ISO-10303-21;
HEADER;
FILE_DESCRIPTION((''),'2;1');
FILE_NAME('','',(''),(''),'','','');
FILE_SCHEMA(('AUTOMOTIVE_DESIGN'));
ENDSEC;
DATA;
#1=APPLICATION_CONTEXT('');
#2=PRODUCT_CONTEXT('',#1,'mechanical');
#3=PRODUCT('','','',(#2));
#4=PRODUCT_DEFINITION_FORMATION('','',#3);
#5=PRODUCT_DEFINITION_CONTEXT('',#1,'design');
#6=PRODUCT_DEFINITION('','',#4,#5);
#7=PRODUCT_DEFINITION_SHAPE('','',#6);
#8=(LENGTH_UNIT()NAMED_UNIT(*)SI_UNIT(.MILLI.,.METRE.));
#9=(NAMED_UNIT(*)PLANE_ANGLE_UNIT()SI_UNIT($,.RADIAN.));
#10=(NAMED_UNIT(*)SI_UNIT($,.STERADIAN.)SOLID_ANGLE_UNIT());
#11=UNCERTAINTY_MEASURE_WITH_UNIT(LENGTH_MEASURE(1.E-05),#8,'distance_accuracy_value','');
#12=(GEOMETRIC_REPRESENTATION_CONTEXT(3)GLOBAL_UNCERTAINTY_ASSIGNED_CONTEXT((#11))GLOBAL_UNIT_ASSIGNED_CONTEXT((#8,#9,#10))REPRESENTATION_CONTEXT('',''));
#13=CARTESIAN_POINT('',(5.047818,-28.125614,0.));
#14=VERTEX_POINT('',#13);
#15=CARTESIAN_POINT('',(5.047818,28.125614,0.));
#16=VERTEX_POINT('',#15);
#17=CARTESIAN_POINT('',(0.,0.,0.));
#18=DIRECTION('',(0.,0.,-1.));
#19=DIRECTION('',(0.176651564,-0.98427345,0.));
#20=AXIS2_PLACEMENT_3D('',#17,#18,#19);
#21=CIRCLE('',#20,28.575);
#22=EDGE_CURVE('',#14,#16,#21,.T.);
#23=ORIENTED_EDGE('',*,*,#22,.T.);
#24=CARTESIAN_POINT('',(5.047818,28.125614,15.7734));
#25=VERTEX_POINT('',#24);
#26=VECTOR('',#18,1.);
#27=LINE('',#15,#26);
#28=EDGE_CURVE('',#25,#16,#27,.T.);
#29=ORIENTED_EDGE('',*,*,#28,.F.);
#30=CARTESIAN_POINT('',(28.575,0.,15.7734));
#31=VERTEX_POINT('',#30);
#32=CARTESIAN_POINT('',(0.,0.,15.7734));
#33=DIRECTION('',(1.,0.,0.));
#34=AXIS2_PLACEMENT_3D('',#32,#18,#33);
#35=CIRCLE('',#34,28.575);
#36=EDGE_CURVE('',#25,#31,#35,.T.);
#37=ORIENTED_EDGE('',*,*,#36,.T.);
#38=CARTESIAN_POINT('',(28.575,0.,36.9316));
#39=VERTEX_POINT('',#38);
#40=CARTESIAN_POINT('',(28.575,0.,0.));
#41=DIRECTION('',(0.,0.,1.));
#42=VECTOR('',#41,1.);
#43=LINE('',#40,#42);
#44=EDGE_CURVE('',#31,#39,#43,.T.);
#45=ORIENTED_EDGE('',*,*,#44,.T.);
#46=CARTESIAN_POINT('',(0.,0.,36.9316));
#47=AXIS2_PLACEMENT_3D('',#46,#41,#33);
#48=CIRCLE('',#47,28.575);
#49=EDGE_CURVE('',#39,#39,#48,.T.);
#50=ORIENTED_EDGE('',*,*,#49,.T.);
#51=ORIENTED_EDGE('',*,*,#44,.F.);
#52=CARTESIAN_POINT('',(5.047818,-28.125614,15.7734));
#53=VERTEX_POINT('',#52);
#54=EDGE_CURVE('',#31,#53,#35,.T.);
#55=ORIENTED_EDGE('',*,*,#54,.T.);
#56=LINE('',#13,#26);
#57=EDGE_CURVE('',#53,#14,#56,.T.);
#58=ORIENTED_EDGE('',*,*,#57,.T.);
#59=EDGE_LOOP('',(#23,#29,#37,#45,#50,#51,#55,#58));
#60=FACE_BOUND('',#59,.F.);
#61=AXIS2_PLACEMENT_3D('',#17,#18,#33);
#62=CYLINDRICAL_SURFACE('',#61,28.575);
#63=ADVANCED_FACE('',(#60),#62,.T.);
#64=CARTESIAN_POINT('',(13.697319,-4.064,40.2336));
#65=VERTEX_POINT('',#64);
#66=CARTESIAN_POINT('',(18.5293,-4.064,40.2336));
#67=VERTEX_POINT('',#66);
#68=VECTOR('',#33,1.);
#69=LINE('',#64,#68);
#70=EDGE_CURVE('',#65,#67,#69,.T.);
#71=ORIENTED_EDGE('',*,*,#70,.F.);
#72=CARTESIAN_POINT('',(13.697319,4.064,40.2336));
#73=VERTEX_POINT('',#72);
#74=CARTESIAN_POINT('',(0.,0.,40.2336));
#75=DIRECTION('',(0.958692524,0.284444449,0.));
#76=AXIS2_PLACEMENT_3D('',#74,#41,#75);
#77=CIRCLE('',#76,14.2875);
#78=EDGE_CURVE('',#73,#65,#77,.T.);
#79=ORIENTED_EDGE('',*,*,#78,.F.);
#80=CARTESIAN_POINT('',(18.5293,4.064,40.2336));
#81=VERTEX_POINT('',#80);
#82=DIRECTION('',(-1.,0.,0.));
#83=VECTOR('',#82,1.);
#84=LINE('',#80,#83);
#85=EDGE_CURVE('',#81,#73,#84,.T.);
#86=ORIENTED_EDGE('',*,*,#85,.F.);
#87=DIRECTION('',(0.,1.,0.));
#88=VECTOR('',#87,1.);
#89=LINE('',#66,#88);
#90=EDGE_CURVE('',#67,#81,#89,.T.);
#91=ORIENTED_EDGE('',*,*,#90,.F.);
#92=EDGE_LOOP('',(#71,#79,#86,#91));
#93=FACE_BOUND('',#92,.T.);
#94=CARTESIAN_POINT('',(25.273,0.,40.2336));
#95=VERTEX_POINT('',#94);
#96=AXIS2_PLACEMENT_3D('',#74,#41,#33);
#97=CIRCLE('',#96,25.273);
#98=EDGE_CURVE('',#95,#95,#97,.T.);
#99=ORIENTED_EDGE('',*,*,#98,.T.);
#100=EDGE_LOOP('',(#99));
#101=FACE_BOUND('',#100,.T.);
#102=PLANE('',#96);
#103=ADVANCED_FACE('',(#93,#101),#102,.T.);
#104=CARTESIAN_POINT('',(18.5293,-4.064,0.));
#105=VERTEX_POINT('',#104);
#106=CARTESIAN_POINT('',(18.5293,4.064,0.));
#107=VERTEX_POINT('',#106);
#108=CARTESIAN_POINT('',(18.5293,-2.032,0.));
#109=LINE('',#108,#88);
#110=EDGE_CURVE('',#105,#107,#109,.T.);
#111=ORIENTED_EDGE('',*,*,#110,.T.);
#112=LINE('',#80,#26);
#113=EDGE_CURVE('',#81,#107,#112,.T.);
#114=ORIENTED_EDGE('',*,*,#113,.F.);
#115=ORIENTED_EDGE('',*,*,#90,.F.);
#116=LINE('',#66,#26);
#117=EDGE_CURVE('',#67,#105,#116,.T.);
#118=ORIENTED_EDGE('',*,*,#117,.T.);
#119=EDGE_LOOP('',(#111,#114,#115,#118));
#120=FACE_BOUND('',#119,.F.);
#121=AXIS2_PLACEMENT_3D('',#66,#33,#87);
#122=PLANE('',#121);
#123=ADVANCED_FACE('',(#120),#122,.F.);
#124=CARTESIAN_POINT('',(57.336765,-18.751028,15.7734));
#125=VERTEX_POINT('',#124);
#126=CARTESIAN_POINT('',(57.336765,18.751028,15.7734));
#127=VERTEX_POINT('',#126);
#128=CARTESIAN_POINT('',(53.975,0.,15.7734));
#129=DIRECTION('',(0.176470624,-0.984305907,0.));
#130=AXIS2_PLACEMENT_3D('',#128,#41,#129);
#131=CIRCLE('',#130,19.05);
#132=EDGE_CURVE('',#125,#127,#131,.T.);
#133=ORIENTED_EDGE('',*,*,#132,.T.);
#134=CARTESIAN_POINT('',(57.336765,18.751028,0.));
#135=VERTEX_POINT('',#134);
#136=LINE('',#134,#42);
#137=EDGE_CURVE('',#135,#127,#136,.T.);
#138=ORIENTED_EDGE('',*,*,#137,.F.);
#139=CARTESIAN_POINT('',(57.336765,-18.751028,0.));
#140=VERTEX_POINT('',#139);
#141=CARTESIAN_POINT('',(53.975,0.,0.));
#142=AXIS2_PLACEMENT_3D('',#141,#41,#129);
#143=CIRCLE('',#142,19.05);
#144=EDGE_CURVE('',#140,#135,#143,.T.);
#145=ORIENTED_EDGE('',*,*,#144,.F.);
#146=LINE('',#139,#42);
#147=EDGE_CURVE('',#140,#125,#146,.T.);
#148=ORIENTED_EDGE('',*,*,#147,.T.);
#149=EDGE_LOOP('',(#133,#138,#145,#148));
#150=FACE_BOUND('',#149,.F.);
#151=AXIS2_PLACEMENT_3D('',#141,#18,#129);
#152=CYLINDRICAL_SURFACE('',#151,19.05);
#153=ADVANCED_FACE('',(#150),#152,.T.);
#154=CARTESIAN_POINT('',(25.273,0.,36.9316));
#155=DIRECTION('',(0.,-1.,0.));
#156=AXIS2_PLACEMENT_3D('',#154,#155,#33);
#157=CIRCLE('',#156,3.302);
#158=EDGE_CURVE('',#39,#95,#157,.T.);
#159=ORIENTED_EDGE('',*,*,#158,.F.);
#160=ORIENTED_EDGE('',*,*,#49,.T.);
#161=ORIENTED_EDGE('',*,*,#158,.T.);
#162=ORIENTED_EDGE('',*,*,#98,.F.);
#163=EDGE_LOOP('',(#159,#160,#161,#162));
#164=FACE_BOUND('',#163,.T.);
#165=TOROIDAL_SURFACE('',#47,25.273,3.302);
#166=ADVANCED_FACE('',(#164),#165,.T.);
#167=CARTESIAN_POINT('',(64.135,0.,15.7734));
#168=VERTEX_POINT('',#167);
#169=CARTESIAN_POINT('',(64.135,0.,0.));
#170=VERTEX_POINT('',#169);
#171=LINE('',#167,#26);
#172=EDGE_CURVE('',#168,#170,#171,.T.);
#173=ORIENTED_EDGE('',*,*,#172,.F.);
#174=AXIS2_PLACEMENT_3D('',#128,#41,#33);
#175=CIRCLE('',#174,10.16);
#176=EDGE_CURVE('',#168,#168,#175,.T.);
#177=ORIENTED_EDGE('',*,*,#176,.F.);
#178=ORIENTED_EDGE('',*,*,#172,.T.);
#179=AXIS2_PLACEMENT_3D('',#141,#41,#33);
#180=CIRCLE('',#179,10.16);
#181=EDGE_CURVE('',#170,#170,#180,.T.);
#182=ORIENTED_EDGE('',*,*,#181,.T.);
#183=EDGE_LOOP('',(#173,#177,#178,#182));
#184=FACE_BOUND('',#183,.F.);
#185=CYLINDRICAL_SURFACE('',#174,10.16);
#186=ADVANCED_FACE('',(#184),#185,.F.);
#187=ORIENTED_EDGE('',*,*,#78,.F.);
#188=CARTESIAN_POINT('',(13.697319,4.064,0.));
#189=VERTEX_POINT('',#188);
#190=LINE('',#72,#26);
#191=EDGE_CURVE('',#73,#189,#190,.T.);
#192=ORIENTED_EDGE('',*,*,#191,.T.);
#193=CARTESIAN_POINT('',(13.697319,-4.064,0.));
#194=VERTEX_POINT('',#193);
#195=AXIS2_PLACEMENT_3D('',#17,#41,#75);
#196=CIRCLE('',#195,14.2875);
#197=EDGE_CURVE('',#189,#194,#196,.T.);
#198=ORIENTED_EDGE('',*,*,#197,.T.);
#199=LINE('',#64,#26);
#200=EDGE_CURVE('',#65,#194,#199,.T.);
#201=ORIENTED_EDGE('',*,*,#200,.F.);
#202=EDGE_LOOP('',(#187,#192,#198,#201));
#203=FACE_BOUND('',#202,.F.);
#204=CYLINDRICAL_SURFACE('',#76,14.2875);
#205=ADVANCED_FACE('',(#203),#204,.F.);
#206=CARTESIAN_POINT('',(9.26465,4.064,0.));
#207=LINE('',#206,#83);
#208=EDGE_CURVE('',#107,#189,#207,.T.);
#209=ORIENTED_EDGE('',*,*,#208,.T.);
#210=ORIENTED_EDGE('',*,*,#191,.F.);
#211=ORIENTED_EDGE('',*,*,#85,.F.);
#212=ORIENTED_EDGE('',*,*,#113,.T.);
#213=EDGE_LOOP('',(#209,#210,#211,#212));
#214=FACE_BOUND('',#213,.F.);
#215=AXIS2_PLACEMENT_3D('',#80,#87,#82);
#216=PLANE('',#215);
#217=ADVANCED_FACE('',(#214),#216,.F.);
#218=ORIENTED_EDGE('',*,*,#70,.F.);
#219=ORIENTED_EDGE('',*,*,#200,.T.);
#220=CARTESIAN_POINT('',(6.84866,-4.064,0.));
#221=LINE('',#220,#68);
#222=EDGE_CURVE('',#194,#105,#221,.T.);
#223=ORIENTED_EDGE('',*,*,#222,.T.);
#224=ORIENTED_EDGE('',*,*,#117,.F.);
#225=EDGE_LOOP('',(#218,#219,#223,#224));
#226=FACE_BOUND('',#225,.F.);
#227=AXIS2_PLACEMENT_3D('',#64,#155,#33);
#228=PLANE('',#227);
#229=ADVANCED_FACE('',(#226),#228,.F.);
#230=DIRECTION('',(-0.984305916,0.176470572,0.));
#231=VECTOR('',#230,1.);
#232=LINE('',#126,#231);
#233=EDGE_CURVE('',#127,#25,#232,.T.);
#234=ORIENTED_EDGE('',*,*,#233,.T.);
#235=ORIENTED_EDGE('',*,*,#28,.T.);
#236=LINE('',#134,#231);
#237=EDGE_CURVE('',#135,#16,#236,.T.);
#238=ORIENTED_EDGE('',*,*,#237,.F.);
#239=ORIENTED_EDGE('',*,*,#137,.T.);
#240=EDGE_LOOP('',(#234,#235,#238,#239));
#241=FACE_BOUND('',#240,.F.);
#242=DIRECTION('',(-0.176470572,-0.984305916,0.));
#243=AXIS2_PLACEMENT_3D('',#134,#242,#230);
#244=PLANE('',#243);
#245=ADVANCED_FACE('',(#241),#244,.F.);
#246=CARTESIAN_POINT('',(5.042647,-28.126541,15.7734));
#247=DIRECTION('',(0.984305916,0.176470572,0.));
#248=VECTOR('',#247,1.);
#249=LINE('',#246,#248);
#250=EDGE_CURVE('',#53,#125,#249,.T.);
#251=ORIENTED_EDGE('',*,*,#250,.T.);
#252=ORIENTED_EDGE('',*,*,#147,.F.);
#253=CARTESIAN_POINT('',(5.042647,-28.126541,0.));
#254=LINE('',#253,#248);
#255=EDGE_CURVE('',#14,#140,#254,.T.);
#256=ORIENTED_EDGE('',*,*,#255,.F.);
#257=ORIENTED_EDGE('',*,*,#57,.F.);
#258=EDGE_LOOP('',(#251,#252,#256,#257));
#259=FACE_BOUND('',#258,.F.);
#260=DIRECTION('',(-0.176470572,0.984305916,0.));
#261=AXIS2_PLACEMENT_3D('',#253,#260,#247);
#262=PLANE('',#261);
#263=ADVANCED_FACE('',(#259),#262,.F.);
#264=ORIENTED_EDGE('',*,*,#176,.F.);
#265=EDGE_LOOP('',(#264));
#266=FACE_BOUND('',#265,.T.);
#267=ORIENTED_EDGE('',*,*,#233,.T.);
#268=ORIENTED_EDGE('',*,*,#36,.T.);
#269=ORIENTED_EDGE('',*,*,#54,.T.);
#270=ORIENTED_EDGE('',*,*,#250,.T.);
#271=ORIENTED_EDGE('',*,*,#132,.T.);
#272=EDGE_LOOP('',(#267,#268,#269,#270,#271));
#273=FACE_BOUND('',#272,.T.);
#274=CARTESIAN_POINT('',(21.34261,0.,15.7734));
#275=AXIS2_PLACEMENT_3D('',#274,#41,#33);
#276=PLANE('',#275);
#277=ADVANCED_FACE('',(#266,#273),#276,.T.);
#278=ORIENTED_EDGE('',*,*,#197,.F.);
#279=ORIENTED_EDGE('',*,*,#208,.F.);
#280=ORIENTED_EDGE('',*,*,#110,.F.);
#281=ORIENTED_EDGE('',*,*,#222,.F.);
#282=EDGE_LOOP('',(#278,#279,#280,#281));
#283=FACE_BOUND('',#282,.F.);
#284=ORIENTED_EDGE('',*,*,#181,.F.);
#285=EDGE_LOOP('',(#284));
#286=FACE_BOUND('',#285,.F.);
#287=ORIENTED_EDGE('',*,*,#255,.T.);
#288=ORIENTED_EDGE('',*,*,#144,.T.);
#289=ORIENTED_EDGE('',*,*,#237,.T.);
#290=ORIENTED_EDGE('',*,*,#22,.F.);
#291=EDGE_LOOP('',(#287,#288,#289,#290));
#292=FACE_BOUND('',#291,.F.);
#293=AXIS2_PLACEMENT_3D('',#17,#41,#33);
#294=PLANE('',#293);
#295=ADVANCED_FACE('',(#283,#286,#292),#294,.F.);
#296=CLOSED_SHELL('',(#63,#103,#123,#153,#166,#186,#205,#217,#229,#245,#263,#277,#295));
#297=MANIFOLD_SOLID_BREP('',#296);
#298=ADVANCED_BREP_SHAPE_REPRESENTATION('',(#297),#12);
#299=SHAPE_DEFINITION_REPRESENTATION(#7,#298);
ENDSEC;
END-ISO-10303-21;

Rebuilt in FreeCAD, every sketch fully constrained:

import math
import FreeCAD as App
import Part
import Sketcher
from FreeCAD import Vector
Q = App.Units.Quantity


def edges_at(feature, points):
    """Names of the edges that pass closest to the given points."""
    edges = feature.Shape.Edges
    near = lambda p: min(range(len(edges)), key=lambda i: edges[i].distToShape(Part.Vertex(*p))[0])
    return sorted({f"Edge{near(p) + 1}" for p in points})

doc = App.newDocument("Part")
body = doc.addObject("PartDesign::Body", "Body")

# Sketch on XY plane
sketch1 = body.newObject("Sketcher::SketchObject", "Sketch")
sketch1.AttachmentSupport = (doc.getObject("XY_Plane"), [""])
sketch1.MapMode = "FlatFace"
sketch1.addGeometry(Part.Circle(Vector(0, 0, 0), Vector(0, 0, 1), 28.575), False)
sketch1.addConstraint(Sketcher.Constraint("Coincident", 0, 3, -1, 1))
sketch1.addConstraint(Sketcher.Constraint("Diameter", 0, Q("2.25 in")))
pad1 = body.newObject("PartDesign::Pad", "Pad")
pad1.Profile = sketch1
pad1.Length = Q("1.584 in")

# Sketch on XY plane
sketch2 = body.newObject("Sketcher::SketchObject", "Sketch001")
sketch2.AttachmentSupport = (doc.getObject("XY_Plane"), [""])
sketch2.MapMode = "FlatFace"
sketch2.addGeometry(Part.LineSegment(Vector(5.042647, -28.126541, 0), Vector(57.336765, -18.751028, 0)), False)
sketch2.addGeometry(Part.ArcOfCircle(Part.Circle(Vector(53.975, 0, 0), Vector(0, 0, 1), 19.05), math.radians(-79.835749), math.radians(79.835749)), False)
sketch2.addGeometry(Part.LineSegment(Vector(57.336765, 18.751028, 0), Vector(5.042647, 28.126541, 0)), False)
sketch2.addGeometry(Part.ArcOfCircle(Part.Circle(Vector(0, 0, 0), Vector(0, 0, 1), 28.575), math.radians(79.835751), math.radians(280.164249)), False)
sketch2.addConstraint(Sketcher.Constraint("Tangent", 0, 2, 1, 1))
sketch2.addConstraint(Sketcher.Constraint("Tangent", 1, 2, 2, 1))
sketch2.addConstraint(Sketcher.Constraint("Tangent", 2, 2, 3, 1))
sketch2.addConstraint(Sketcher.Constraint("Tangent", 3, 2, 0, 1))
sketch2.addConstraint(Sketcher.Constraint("Coincident", 3, 3, -1, 1))
sketch2.addConstraint(Sketcher.Constraint("PointOnObject", 1, 3, -1))
sketch2.addConstraint(Sketcher.Constraint("Radius", 1, Q("0.75 in")))
sketch2.addConstraint(Sketcher.Constraint("Radius", 3, Q("1.125 in")))
sketch2.addConstraint(Sketcher.Constraint("DistanceX", -1, 1, 1, 3, Q("2.125 in")))
pad2 = body.newObject("PartDesign::Pad", "Pad001")
pad2.Profile = sketch2
pad2.Length = Q("0.621 in")

# Sketch on XY plane
sketch3 = body.newObject("Sketcher::SketchObject", "Sketch002")
sketch3.AttachmentSupport = (doc.getObject("XY_Plane"), [""])
sketch3.MapMode = "FlatFace"
sketch3.AttachmentOffset = App.Placement(Vector(0, 0, 1.584 * 25.4), App.Rotation())
sketch3.addGeometry(Part.LineSegment(Vector(18.5293, 4.064, 0), Vector(13.697319, 4.064, 0)), False)
sketch3.addGeometry(Part.ArcOfCircle(Part.Circle(Vector(0, 0, 0), Vector(0, 0, 1), 14.2875), math.radians(16.525643), math.radians(343.474357)), False)
sketch3.addGeometry(Part.LineSegment(Vector(13.697319, -4.064, 0), Vector(18.5293, -4.064, 0)), False)
sketch3.addGeometry(Part.LineSegment(Vector(18.5293, -4.064, 0), Vector(18.5293, 4.064, 0)), False)
sketch3.addConstraint(Sketcher.Constraint("Coincident", 0, 2, 1, 1))
sketch3.addConstraint(Sketcher.Constraint("Coincident", 1, 2, 2, 1))
sketch3.addConstraint(Sketcher.Constraint("Coincident", 2, 2, 3, 1))
sketch3.addConstraint(Sketcher.Constraint("Coincident", 3, 2, 0, 1))
sketch3.addConstraint(Sketcher.Constraint("Horizontal", 0))
sketch3.addConstraint(Sketcher.Constraint("Horizontal", 2))
sketch3.addConstraint(Sketcher.Constraint("Vertical", 3))
sketch3.addConstraint(Sketcher.Constraint("Coincident", 1, 3, -1, 1))
sketch3.addConstraint(Sketcher.Constraint("Vertical", 0, 2, 1, 2))
sketch3.addConstraint(Sketcher.Constraint("Radius", 1, Q("0.5625 in")))
sketch3.addConstraint(Sketcher.Constraint("DistanceY", 3, 1, 3, 2, Q("0.32 in")))
sketch3.addConstraint(Sketcher.Constraint("DistanceX", -1, 1, 2, 2, Q("0.7295 in")))
pocket1 = body.newObject("PartDesign::Pocket", "Pocket")
pocket1.Profile = sketch3
pocket1.Type = "ThroughAll"

# Sketch on XY plane
sketch4 = body.newObject("Sketcher::SketchObject", "Sketch003")
sketch4.AttachmentSupport = (doc.getObject("XY_Plane"), [""])
sketch4.MapMode = "FlatFace"
sketch4.AttachmentOffset = App.Placement(Vector(0, 0, 0.621 * 25.4), App.Rotation())
sketch4.addGeometry(Part.Circle(Vector(53.975, 0, 0), Vector(0, 0, 1), 10.16), False)
sketch4.addConstraint(Sketcher.Constraint("PointOnObject", 0, 3, -1))
sketch4.addConstraint(Sketcher.Constraint("Diameter", 0, Q("0.8 in")))
sketch4.addConstraint(Sketcher.Constraint("DistanceX", -1, 1, 0, 3, Q("2.125 in")))
pocket2 = body.newObject("PartDesign::Pocket", "Pocket001")
pocket2.Profile = sketch4
pocket2.Type = "ThroughAll"
doc.recompute()

fillet = body.newObject("PartDesign::Fillet", "Fillet")
fillet.Base = (pocket2, edges_at(pocket2, [(-28.575, 0, 40.234)]))
fillet.Radius = Q("0.13 in")

doc.recompute()
